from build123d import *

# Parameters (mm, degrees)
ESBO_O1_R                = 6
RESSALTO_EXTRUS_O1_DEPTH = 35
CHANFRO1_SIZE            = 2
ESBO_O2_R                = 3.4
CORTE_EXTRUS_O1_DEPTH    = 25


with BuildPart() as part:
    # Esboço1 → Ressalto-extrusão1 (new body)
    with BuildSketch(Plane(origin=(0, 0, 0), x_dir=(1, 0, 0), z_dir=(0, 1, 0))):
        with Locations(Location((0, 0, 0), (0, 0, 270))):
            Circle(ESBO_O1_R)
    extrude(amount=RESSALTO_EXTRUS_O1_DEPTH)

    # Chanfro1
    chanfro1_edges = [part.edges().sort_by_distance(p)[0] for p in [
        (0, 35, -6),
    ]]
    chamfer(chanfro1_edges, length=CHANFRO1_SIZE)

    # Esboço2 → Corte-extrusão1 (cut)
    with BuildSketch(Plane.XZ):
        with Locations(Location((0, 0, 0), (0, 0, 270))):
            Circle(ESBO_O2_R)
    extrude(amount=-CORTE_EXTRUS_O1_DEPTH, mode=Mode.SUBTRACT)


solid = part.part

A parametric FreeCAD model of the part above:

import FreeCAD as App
import Part
import Sketcher


def edges_at(feature, points):
    """Names of the edges that pass closest to the given points."""
    edges = feature.Shape.Edges
    near = lambda p: min(range(len(edges)), key=lambda i: edges[i].distToShape(Part.Vertex(*p))[0])
    return sorted({f"Edge{near(p) + 1}" for p in points})

doc = App.newDocument("Part")
params = doc.addObject("Spreadsheet::Sheet", "Params")
for row, (alias, value) in enumerate([
    ("sketch1_diameter", "12 mm"),
    ("pad1_length", "35 mm"),
    ("chamfer_size", "2 mm"),
    ("sketch2_diameter", "6.8 mm"),
    ("pocket1_length", "25 mm"),
], start=1):
    params.set(f"A{row}", alias)
    params.set(f"B{row}", "=" + value)
    params.setAlias(f"B{row}", alias)

body = doc.addObject("PartDesign::Body", "Body")

# Sketch on XZ plane
sketch1 = doc.addObject("Sketcher::SketchObject", "Sketch")
body.addObject(sketch1)
sketch1.AttachmentSupport = (doc.XZ_Plane, [""])
sketch1.MapMode = "FlatFace"
sketch1.addGeometry(Part.Circle(App.Vector(0, 0, 0), App.Vector(0, 0, 1), 6), False)
sketch1.addConstraint([
    Sketcher.Constraint("Coincident", 0, 3, -1, 1),
    Sketcher.Constraint("Diameter", 0, 12.0),
])
sketch1.setExpression("Constraints[1]", "Params.sketch1_diameter")
pad1 = doc.addObject("PartDesign::Pad", "Pad")
body.addObject(pad1)
pad1.Profile = sketch1
pad1.setExpression("Length", "Params.pad1_length")
pad1.Reversed = True
doc.recompute()

chamfer = doc.addObject("PartDesign::Chamfer", "Chamfer")
body.addObject(chamfer)
chamfer.Base = (pad1, edges_at(pad1, [(0, 35, -6)]))
chamfer.setExpression("Size", "Params.chamfer_size")

# Sketch on XZ plane
sketch2 = doc.addObject("Sketcher::SketchObject", "Sketch001")
body.addObject(sketch2)
sketch2.AttachmentSupport = (doc.XZ_Plane, [""])
sketch2.MapMode = "FlatFace"
sketch2.addGeometry(Part.Circle(App.Vector(0, 0, 0), App.Vector(0, 0, 1), 3.4), False)
sketch2.addConstraint([
    Sketcher.Constraint("Coincident", 0, 3, -1, 1),
    Sketcher.Constraint("Diameter", 0, 6.8),
])
sketch2.setExpression("Constraints[1]", "Params.sketch2_diameter")
pocket1 = doc.addObject("PartDesign::Pocket", "Pocket")
body.addObject(pocket1)
pocket1.Profile = sketch2
pocket1.setExpression("Length", "Params.pocket1_length")

doc.recompute()
